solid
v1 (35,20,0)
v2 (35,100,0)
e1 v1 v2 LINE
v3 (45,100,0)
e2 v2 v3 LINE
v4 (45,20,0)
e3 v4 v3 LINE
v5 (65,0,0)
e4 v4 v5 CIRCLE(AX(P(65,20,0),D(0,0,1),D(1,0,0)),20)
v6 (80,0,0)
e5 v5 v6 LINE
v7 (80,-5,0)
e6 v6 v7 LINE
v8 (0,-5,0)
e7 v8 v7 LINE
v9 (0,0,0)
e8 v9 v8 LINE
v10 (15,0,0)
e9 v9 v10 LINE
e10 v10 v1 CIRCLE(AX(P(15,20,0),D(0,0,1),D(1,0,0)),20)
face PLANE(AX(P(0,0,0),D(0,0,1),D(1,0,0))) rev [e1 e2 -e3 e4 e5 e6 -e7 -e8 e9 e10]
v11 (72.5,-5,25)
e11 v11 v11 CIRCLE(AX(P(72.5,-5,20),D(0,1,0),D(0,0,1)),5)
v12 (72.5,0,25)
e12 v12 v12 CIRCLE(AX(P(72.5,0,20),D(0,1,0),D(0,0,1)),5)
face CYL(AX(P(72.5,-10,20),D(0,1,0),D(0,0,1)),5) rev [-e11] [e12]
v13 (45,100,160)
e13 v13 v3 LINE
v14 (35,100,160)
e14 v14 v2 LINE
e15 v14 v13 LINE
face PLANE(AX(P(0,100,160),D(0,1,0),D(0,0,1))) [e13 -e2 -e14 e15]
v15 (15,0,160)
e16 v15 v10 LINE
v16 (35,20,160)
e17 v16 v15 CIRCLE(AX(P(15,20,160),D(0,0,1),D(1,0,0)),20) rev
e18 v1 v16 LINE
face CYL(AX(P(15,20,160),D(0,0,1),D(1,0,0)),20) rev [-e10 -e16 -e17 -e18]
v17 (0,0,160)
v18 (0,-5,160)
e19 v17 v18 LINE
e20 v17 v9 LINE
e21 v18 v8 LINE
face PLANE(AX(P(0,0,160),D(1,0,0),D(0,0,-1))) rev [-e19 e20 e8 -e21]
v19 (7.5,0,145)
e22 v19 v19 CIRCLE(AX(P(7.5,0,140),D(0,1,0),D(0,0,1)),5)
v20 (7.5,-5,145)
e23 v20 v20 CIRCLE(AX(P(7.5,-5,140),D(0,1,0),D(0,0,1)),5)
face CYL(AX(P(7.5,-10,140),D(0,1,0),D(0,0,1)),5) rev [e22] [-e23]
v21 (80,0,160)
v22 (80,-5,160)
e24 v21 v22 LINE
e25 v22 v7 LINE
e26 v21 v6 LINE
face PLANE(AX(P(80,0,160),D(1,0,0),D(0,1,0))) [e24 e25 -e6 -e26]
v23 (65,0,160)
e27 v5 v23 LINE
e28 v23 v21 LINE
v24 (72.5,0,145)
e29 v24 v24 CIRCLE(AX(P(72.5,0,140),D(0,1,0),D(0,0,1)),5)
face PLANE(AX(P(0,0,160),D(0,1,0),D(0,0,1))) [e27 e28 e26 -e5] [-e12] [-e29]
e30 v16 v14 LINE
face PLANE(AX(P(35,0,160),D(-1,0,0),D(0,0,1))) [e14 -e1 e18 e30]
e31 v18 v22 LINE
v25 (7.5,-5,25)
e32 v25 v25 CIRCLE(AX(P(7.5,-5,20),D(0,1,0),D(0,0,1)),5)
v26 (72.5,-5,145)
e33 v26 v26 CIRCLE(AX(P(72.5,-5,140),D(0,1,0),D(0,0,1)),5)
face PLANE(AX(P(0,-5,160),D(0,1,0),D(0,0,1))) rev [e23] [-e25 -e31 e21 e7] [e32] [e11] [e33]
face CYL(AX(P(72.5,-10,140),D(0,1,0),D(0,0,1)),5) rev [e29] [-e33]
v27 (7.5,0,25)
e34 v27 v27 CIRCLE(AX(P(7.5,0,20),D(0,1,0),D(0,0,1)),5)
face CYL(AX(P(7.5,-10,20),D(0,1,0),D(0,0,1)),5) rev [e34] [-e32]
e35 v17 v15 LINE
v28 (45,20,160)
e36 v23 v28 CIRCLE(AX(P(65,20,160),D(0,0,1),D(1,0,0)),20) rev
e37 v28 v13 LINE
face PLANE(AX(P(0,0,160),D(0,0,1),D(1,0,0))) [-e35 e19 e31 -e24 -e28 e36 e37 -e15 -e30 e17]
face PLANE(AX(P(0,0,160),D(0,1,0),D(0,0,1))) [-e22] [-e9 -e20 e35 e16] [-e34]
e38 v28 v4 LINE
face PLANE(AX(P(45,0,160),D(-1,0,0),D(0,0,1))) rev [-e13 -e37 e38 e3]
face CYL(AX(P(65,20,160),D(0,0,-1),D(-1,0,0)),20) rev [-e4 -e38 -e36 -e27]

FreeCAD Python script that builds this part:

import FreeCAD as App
import Part
import Sketcher


def edges_at(feature, points):
    """Names of the edges that pass closest to the given points."""
    edges = feature.Shape.Edges
    near = lambda p: min(range(len(edges)), key=lambda i: edges[i].distToShape(Part.Vertex(*p))[0])
    return sorted({f"Edge{near(p) + 1}" for p in points})

doc = App.newDocument("Part")
body = doc.addObject("PartDesign::Body", "Body")

sketch1 = doc.addObject("Sketcher::SketchObject", "Sketch")
body.addObject(sketch1)
sketch1.AttachmentSupport = (doc.XY_Plane, [""])
sketch1.MapMode = "FlatFace"
sketch1.addGeometry(Part.LineSegment(App.Vector(35, 100, 0), App.Vector(35, 0, 0)), False)
sketch1.addGeometry(Part.LineSegment(App.Vector(35, 0, 0), App.Vector(0, 0, 0)), False)
sketch1.addGeometry(Part.LineSegment(App.Vector(0, 0, 0), App.Vector(0, -5, 0)), False)
sketch1.addGeometry(Part.LineSegment(App.Vector(0, -5, 0), App.Vector(80, -5, 0)), False)
sketch1.addGeometry(Part.LineSegment(App.Vector(80, -5, 0), App.Vector(80, 0, 0)), False)
sketch1.addGeometry(Part.LineSegment(App.Vector(80, 0, 0), App.Vector(45, 0, 0)), False)
sketch1.addGeometry(Part.LineSegment(App.Vector(45, 0, 0), App.Vector(45, 100, 0)), False)
sketch1.addGeometry(Part.LineSegment(App.Vector(45, 100, 0), App.Vector(35, 100, 0)), False)
sketch1.addConstraint(Sketcher.Constraint("Coincident", 0, 2, 1, 1))
sketch1.addConstraint(Sketcher.Constraint("Coincident", 1, 2, 2, 1))
sketch1.addConstraint(Sketcher.Constraint("Coincident", 2, 2, 3, 1))
sketch1.addConstraint(Sketcher.Constraint("Coincident", 3, 2, 4, 1))
sketch1.addConstraint(Sketcher.Constraint("Coincident", 4, 2, 5, 1))
sketch1.addConstraint(Sketcher.Constraint("Coincident", 5, 2, 6, 1))
sketch1.addConstraint(Sketcher.Constraint("Coincident", 6, 2, 7, 1))
sketch1.addConstraint(Sketcher.Constraint("Coincident", 7, 2, 0, 1))
sketch1.addConstraint(Sketcher.Constraint("Vertical", 0))
sketch1.addConstraint(Sketcher.Constraint("Horizontal", 1))
sketch1.addConstraint(Sketcher.Constraint("Vertical", 2))
sketch1.addConstraint(Sketcher.Constraint("Horizontal", 3))
sketch1.addConstraint(Sketcher.Constraint("Vertical", 4))
sketch1.addConstraint(Sketcher.Constraint("Horizontal", 5))
sketch1.addConstraint(Sketcher.Constraint("Vertical", 6))
sketch1.addConstraint(Sketcher.Constraint("Horizontal", 7))
sketch1.addConstraint(Sketcher.Constraint("Coincident", 1, 2, -1, 1))
sketch1.addConstraint(Sketcher.Constraint("PointOnObject", 4, 2, -1))
sketch1.addConstraint(Sketcher.Constraint("Equal", 1, 5))
sketch1.addConstraint(Sketcher.Constraint("DistanceX", 1, 2, 1, 1, 35.0))
sketch1.addConstraint(Sketcher.Constraint("DistanceX", 3, 1, 3, 2, 80.0))
sketch1.addConstraint(Sketcher.Constraint("DistanceY", 0, 2, 0, 1, 100.0))
sketch1.addConstraint(Sketcher.Constraint("DistanceY", 2, 2, 2, 1, 5.0))
pad1 = doc.addObject("PartDesign::Pad", "Pad")
body.addObject(pad1)
pad1.Profile = sketch1
pad1.Length = 160
doc.recompute()

fillet = doc.addObject("PartDesign::Fillet", "Fillet")
body.addObject(fillet)
fillet.Base = (pad1, edges_at(pad1, [(45, 0, 80), (35, 0, 80)]))
fillet.Radius = 20

sketch2 = doc.addObject("Sketcher::SketchObject", "Sketch001")
body.addObject(sketch2)
sketch2.AttachmentSupport = (doc.XZ_Plane, [""])
sketch2.MapMode = "FlatFace"
sketch2.addGeometry(Part.Circle(App.Vector(72, 20, 0), App.Vector(0, 0, 1), 5), False)
sketch2.addGeometry(Part.Circle(App.Vector(72, 140, 0), App.Vector(0, 0, 1), 5), False)
sketch2.addGeometry(Part.Circle(App.Vector(8, 140, 0), App.Vector(0, 0, 1), 5), False)
sketch2.addGeometry(Part.Circle(App.Vector(8, 20, 0), App.Vector(0, 0, 1), 5), False)
sketch2.addConstraint(Sketcher.Constraint("Equal", 0, 1))
sketch2.addConstraint(Sketcher.Constraint("Equal", 1, 2))
sketch2.addConstraint(Sketcher.Constraint("Equal", 2, 3))
sketch2.addConstraint(Sketcher.Constraint("Horizontal", 1, 3, 2, 3))
sketch2.addConstraint(Sketcher.Constraint("Horizontal", 0, 3, 3, 3))
sketch2.addConstraint(Sketcher.Constraint("Vertical", 0, 3, 1, 3))
sketch2.addConstraint(Sketcher.Constraint("Vertical", 2, 3, 3, 3))
sketch2.addConstraint(Sketcher.Constraint("Diameter", 0, 10.0))
sketch2.addConstraint(Sketcher.Constraint("DistanceY", -1, 1, 0, 3, 20.0))
sketch2.addConstraint(Sketcher.Constraint("DistanceY", -1, 1, 1, 3, 140.0))
sketch2.addConstraint(Sketcher.Constraint("DistanceX", 2, 3, 1, 3, 65.0))
sketch2.addConstraint(Sketcher.Constraint("DistanceX", -1, 1, 0, 3, 72.5))
pocket1 = doc.addObject("PartDesign::Pocket", "Pocket")
body.addObject(pocket1)
pocket1.Profile = sketch2
pocket1.Length = 10
pocket1.Reversed = True

doc.recompute()
